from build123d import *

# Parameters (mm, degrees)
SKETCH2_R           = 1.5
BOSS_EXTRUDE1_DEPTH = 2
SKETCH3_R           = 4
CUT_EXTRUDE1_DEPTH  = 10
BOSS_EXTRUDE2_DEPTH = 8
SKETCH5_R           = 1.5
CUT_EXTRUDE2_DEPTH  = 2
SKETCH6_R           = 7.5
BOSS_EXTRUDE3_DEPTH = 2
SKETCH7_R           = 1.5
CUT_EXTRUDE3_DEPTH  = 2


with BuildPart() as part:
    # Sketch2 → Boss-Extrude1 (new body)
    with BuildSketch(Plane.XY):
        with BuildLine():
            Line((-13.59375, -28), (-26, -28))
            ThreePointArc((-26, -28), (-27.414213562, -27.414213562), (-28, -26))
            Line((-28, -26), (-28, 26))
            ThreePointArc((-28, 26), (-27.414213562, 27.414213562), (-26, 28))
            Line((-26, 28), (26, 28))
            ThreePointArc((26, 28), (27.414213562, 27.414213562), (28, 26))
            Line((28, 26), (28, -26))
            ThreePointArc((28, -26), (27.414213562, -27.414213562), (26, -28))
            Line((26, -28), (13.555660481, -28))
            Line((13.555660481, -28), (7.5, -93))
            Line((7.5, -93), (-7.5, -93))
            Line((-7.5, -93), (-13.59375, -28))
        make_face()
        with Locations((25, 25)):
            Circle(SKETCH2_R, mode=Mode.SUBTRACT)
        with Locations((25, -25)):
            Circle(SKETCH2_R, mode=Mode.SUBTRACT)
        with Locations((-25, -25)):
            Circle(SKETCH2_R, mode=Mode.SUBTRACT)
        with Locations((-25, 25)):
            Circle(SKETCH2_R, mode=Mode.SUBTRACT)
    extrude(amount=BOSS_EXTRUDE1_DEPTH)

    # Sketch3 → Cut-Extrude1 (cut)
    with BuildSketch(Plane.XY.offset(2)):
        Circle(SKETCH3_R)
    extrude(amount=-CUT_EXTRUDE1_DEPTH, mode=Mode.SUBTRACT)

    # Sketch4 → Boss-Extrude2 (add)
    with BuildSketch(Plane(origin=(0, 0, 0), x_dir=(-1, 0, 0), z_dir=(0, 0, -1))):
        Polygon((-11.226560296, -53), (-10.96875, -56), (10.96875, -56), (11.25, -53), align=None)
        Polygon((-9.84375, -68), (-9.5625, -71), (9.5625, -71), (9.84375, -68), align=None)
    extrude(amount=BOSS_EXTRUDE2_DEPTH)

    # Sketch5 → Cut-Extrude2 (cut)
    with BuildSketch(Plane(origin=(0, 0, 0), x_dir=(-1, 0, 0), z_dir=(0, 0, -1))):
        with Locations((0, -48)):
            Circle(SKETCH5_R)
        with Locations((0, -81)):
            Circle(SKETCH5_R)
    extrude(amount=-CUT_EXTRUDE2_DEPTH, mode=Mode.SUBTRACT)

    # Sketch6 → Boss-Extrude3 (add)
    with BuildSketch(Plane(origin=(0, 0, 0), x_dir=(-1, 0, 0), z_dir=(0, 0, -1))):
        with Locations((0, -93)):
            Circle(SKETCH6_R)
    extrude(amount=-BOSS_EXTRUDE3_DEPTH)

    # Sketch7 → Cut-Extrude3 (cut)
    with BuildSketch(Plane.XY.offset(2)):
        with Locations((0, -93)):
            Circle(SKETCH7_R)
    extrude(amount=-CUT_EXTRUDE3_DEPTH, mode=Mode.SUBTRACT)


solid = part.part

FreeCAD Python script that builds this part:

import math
import FreeCAD as App
import Part
import Sketcher
from FreeCAD import Vector


def add_polygon(sketch, points):
    """Adds a closed chain of lines whose ends are joined by coincident constraints."""
    first, n = sketch.GeometryCount, len(points)
    for a, b in zip(points, points[1:] + points[:1]):
        sketch.addGeometry(Part.LineSegment(App.Vector(*a, 0), App.Vector(*b, 0)), False)
    for i in range(n):
        sketch.addConstraint(Sketcher.Constraint("Coincident", first + i, 2, first + (i + 1) % n, 1))

doc = App.newDocument("Part")
body = doc.addObject("PartDesign::Body", "Body")

# Sketch on XY plane
sketch1 = doc.addObject("Sketcher::SketchObject", "Sketch")
body.addObject(sketch1)
sketch1.AttachmentSupport = (doc.XY_Plane, [""])
sketch1.MapMode = "FlatFace"
sketch1.addGeometry([
    Part.LineSegment(Vector(-26, -28, 0), Vector(-13.6, -28, 0)),  # 0
    Part.LineSegment(Vector(-13.6, -28, 0), Vector(-7.5, -93, 0)),  # 1
    Part.LineSegment(Vector(-7.5, -93, 0), Vector(7.5, -93, 0)),  # 2
    Part.LineSegment(Vector(7.5, -93, 0), Vector(13.6, -28, 0)),  # 3
    Part.LineSegment(Vector(13.6, -28, 0), Vector(26, -28, 0)),  # 4
    Part.ArcOfCircle(Part.Circle(Vector(26, -26, 0), Vector(0, 0, 1), 2), math.radians(-90), math.radians(0)),  # 5
    Part.LineSegment(Vector(28, -26, 0), Vector(28, 26, 0)),  # 6
    Part.ArcOfCircle(Part.Circle(Vector(26, 26, 0), Vector(0, 0, 1), 2), math.radians(0), math.radians(90)),  # 7
    Part.LineSegment(Vector(26, 28, 0), Vector(-26, 28, 0)),  # 8
    Part.ArcOfCircle(Part.Circle(Vector(-26, 26, 0), Vector(0, 0, 1), 2), math.radians(90), math.radians(180)),  # 9
    Part.LineSegment(Vector(-28, 26, 0), Vector(-28, -26, 0)),  # 10
    Part.ArcOfCircle(Part.Circle(Vector(-26, -26, 0), Vector(0, 0, 1), 2), math.radians(-180), math.radians(-90)),  # 11
    Part.Circle(Vector(25, -25, 0), Vector(0, 0, 1), 1.5),  # 12
    Part.Circle(Vector(-25, -25, 0), Vector(0, 0, 1), 1.5),  # 13
    Part.Circle(Vector(25, 25, 0), Vector(0, 0, 1), 1.5),  # 14
    Part.Circle(Vector(-25, 25, 0), Vector(0, 0, 1), 1.5),  # 15
], False)
sketch1.addConstraint([
    Sketcher.Constraint("Coincident", 0, 2, 1, 1),
    Sketcher.Constraint("Coincident", 1, 2, 2, 1),
    Sketcher.Constraint("Coincident", 2, 2, 3, 1),
    Sketcher.Constraint("Coincident", 3, 2, 4, 1),
    Sketcher.Constraint("Tangent", 4, 2, 5, 1),
    Sketcher.Constraint("Tangent", 5, 2, 6, 1),
    Sketcher.Constraint("Tangent", 6, 2, 7, 1),
    Sketcher.Constraint("Tangent", 7, 2, 8, 1),
    Sketcher.Constraint("Tangent", 8, 2, 9, 1),
    Sketcher.Constraint("Tangent", 9, 2, 10, 1),
    Sketcher.Constraint("Tangent", 10, 2, 11, 1),
    Sketcher.Constraint("Tangent", 11, 2, 0, 1),
    Sketcher.Constraint("Horizontal", 0),
    Sketcher.Constraint("Horizontal", 2),
    Sketcher.Constraint("Horizontal", 4),
    Sketcher.Constraint("Vertical", 6),
    Sketcher.Constraint("Horizontal", 8),
    Sketcher.Constraint("Vertical", 10),
    Sketcher.Constraint("Equal", 5, 7),
    Sketcher.Constraint("Equal", 7, 9),
    Sketcher.Constraint("Equal", 9, 11),
    Sketcher.Constraint("Equal", 12, 13),
    Sketcher.Constraint("Equal", 13, 14),
    Sketcher.Constraint("Equal", 14, 15),
    Sketcher.Constraint("Symmetric", 5, 3, 9, 3, -1, 1),
    Sketcher.Constraint("Symmetric", 13, 3, 14, 3, -1, 1),
    Sketcher.Constraint("Symmetric", 12, 3, 15, 3, -1, 1),
    Sketcher.Constraint("Symmetric", 12, 3, 13, 3, -2),
    Sketcher.Constraint("Horizontal", 5, 3, 11, 3),
    Sketcher.Constraint("Equal", 8, 6),
    Sketcher.Constraint("Diameter", 12, 3.0),
    Sketcher.Constraint("Radius", 5, 2.0),
    Sketcher.Constraint("DistanceX", 2, 1, 2, 2, 15.0),
    Sketcher.Constraint("DistanceX", 8, 2, 8, 1, 52.0),
    Sketcher.Constraint("DistanceX", -1, 1, 12, 3, 25.0),
    Sketcher.Constraint("DistanceY", 12, 3, -1, 1, 25.0),
    Sketcher.Constraint("DistanceY", 1, 2, -1, 1, 93.0),
    Sketcher.Constraint("DistanceX", 1, 2, -1, 1, 7.5),
    Sketcher.Constraint("DistanceX", 0, 1, 0, 2, 12.40625),
    Sketcher.Constraint("DistanceX", 4, 1, 4, 2, 12.44434),
])
pad1 = doc.addObject("PartDesign::Pad", "Pad")
body.addObject(pad1)
pad1.Profile = sketch1
pad1.Length = 2

# Sketch on XY plane
sketch2 = doc.addObject("Sketcher::SketchObject", "Sketch001")
body.addObject(sketch2)
sketch2.AttachmentSupport = (doc.XY_Plane, [""])
sketch2.MapMode = "FlatFace"
sketch2.AttachmentOffset = App.Placement(Vector(0, 0, 2), App.Rotation())
sketch2.addGeometry(Part.Circle(Vector(0, 0, 0), Vector(0, 0, 1), 4), False)
sketch2.addConstraint([
    Sketcher.Constraint("Coincident", 0, 3, -1, 1),
    Sketcher.Constraint("Diameter", 0, 8.0),
])
pocket1 = doc.addObject("PartDesign::Pocket", "Pocket")
body.addObject(pocket1)
pocket1.Profile = sketch2
pocket1.Length = 10

# Sketch on XY plane
sketch3 = doc.addObject("Sketcher::SketchObject", "Sketch002")
body.addObject(sketch3)
sketch3.AttachmentSupport = (doc.XY_Plane, [""])
sketch3.MapMode = "FlatFace"
add_polygon(sketch3, [(11.2, -53), (11, -56), (-11, -56), (-11.2, -53)])  # lines 0-3
add_polygon(sketch3, [(9.8, -68), (9.6, -71), (-9.6, -71), (-9.8, -68)])  # lines 4-7
sketch3.addConstraint([
    Sketcher.Constraint("Horizontal", 1),
    Sketcher.Constraint("Horizontal", 3),
    Sketcher.Constraint("Horizontal", 5),
    Sketcher.Constraint("Horizontal", 7),
    Sketcher.Constraint("Parallel", 2, 6),
    Sketcher.Constraint("Equal", 2, 4),
    Sketcher.Constraint("Equal", 4, 6),
    Sketcher.Constraint("DistanceY", 0, 2, -1, 1, 56.0),
    Sketcher.Constraint("DistanceY", 2, 2, -1, 1, 53.0),
    Sketcher.Constraint("DistanceY", 4, 2, -1, 1, 71.0),
    Sketcher.Constraint("DistanceX", 5, 2, 5, 1, 19.125),
    Sketcher.Constraint("DistanceX", 2, 2, -1, 1, 11.25),
    Sketcher.Constraint("DistanceX", 1, 2, 1, 1, 21.9375),
    Sketcher.Constraint("DistanceX", 7, 1, 7, 2, 19.6875),
    Sketcher.Constraint("DistanceX", 1, 2, 6, 2, 1.125),
    Sketcher.Constraint("DistanceX", 3, 1, 3, 2, 22.47656),
])
pad2 = doc.addObject("PartDesign::Pad", "Pad001")
body.addObject(pad2)
pad2.Profile = sketch3
pad2.Length = 8
pad2.Reversed = True

# Sketch on XY plane
sketch4 = doc.addObject("Sketcher::SketchObject", "Sketch003")
body.addObject(sketch4)
sketch4.AttachmentSupport = (doc.XY_Plane, [""])
sketch4.MapMode = "FlatFace"
sketch4.addGeometry([
    Part.Circle(Vector(0, -48, 0), Vector(0, 0, 1), 1.5),
    Part.Circle(Vector(0, -81, 0), Vector(0, 0, 1), 1.5),
], False)
sketch4.addConstraint([
    Sketcher.Constraint("Equal", 0, 1),
    Sketcher.Constraint("PointOnObject", 0, 3, -2),
    Sketcher.Constraint("PointOnObject", 1, 3, -2),
    Sketcher.Constraint("Diameter", 0, 3.0),
    Sketcher.Constraint("DistanceY", 0, 3, -1, 1, 48.0),
    Sketcher.Constraint("DistanceY", 1, 3, -1, 1, 81.0),
])
pocket2 = doc.addObject("PartDesign::Pocket", "Pocket001")
body.addObject(pocket2)
pocket2.Profile = sketch4
pocket2.Length = 2
pocket2.Reversed = True

# Sketch on XY plane
sketch5 = doc.addObject("Sketcher::SketchObject", "Sketch004")
body.addObject(sketch5)
sketch5.AttachmentSupport = (doc.XY_Plane, [""])
sketch5.MapMode = "FlatFace"
sketch5.addGeometry(Part.Circle(Vector(0, -93, 0), Vector(0, 0, 1), 8), False)
sketch5.addConstraint([
    Sketcher.Constraint("PointOnObject", 0, 3, -2),
    Sketcher.Constraint("Diameter", 0, 15.0),
    Sketcher.Constraint("DistanceY", 0, 3, -1, 1, 93.0),
])
pad3 = doc.addObject("PartDesign::Pad", "Pad002")
body.addObject(pad3)
pad3.Profile = sketch5
pad3.Length = 2

# Sketch on XY plane
sketch6 = doc.addObject("Sketcher::SketchObject", "Sketch005")
body.addObject(sketch6)
sketch6.AttachmentSupport = (doc.XY_Plane, [""])
sketch6.MapMode = "FlatFace"
sketch6.AttachmentOffset = App.Placement(Vector(0, 0, 2), App.Rotation())
sketch6.addGeometry(Part.Circle(Vector(0, -93, 0), Vector(0, 0, 1), 1.5), False)
sketch6.addConstraint([
    Sketcher.Constraint("PointOnObject", 0, 3, -2),
    Sketcher.Constraint("Diameter", 0, 3.0),
    Sketcher.Constraint("DistanceY", 0, 3, -1, 1, 93.0),
])
pocket3 = doc.addObject("PartDesign::Pocket", "Pocket002")
body.addObject(pocket3)
pocket3.Profile = sketch6
pocket3.Length = 2

doc.recompute()
